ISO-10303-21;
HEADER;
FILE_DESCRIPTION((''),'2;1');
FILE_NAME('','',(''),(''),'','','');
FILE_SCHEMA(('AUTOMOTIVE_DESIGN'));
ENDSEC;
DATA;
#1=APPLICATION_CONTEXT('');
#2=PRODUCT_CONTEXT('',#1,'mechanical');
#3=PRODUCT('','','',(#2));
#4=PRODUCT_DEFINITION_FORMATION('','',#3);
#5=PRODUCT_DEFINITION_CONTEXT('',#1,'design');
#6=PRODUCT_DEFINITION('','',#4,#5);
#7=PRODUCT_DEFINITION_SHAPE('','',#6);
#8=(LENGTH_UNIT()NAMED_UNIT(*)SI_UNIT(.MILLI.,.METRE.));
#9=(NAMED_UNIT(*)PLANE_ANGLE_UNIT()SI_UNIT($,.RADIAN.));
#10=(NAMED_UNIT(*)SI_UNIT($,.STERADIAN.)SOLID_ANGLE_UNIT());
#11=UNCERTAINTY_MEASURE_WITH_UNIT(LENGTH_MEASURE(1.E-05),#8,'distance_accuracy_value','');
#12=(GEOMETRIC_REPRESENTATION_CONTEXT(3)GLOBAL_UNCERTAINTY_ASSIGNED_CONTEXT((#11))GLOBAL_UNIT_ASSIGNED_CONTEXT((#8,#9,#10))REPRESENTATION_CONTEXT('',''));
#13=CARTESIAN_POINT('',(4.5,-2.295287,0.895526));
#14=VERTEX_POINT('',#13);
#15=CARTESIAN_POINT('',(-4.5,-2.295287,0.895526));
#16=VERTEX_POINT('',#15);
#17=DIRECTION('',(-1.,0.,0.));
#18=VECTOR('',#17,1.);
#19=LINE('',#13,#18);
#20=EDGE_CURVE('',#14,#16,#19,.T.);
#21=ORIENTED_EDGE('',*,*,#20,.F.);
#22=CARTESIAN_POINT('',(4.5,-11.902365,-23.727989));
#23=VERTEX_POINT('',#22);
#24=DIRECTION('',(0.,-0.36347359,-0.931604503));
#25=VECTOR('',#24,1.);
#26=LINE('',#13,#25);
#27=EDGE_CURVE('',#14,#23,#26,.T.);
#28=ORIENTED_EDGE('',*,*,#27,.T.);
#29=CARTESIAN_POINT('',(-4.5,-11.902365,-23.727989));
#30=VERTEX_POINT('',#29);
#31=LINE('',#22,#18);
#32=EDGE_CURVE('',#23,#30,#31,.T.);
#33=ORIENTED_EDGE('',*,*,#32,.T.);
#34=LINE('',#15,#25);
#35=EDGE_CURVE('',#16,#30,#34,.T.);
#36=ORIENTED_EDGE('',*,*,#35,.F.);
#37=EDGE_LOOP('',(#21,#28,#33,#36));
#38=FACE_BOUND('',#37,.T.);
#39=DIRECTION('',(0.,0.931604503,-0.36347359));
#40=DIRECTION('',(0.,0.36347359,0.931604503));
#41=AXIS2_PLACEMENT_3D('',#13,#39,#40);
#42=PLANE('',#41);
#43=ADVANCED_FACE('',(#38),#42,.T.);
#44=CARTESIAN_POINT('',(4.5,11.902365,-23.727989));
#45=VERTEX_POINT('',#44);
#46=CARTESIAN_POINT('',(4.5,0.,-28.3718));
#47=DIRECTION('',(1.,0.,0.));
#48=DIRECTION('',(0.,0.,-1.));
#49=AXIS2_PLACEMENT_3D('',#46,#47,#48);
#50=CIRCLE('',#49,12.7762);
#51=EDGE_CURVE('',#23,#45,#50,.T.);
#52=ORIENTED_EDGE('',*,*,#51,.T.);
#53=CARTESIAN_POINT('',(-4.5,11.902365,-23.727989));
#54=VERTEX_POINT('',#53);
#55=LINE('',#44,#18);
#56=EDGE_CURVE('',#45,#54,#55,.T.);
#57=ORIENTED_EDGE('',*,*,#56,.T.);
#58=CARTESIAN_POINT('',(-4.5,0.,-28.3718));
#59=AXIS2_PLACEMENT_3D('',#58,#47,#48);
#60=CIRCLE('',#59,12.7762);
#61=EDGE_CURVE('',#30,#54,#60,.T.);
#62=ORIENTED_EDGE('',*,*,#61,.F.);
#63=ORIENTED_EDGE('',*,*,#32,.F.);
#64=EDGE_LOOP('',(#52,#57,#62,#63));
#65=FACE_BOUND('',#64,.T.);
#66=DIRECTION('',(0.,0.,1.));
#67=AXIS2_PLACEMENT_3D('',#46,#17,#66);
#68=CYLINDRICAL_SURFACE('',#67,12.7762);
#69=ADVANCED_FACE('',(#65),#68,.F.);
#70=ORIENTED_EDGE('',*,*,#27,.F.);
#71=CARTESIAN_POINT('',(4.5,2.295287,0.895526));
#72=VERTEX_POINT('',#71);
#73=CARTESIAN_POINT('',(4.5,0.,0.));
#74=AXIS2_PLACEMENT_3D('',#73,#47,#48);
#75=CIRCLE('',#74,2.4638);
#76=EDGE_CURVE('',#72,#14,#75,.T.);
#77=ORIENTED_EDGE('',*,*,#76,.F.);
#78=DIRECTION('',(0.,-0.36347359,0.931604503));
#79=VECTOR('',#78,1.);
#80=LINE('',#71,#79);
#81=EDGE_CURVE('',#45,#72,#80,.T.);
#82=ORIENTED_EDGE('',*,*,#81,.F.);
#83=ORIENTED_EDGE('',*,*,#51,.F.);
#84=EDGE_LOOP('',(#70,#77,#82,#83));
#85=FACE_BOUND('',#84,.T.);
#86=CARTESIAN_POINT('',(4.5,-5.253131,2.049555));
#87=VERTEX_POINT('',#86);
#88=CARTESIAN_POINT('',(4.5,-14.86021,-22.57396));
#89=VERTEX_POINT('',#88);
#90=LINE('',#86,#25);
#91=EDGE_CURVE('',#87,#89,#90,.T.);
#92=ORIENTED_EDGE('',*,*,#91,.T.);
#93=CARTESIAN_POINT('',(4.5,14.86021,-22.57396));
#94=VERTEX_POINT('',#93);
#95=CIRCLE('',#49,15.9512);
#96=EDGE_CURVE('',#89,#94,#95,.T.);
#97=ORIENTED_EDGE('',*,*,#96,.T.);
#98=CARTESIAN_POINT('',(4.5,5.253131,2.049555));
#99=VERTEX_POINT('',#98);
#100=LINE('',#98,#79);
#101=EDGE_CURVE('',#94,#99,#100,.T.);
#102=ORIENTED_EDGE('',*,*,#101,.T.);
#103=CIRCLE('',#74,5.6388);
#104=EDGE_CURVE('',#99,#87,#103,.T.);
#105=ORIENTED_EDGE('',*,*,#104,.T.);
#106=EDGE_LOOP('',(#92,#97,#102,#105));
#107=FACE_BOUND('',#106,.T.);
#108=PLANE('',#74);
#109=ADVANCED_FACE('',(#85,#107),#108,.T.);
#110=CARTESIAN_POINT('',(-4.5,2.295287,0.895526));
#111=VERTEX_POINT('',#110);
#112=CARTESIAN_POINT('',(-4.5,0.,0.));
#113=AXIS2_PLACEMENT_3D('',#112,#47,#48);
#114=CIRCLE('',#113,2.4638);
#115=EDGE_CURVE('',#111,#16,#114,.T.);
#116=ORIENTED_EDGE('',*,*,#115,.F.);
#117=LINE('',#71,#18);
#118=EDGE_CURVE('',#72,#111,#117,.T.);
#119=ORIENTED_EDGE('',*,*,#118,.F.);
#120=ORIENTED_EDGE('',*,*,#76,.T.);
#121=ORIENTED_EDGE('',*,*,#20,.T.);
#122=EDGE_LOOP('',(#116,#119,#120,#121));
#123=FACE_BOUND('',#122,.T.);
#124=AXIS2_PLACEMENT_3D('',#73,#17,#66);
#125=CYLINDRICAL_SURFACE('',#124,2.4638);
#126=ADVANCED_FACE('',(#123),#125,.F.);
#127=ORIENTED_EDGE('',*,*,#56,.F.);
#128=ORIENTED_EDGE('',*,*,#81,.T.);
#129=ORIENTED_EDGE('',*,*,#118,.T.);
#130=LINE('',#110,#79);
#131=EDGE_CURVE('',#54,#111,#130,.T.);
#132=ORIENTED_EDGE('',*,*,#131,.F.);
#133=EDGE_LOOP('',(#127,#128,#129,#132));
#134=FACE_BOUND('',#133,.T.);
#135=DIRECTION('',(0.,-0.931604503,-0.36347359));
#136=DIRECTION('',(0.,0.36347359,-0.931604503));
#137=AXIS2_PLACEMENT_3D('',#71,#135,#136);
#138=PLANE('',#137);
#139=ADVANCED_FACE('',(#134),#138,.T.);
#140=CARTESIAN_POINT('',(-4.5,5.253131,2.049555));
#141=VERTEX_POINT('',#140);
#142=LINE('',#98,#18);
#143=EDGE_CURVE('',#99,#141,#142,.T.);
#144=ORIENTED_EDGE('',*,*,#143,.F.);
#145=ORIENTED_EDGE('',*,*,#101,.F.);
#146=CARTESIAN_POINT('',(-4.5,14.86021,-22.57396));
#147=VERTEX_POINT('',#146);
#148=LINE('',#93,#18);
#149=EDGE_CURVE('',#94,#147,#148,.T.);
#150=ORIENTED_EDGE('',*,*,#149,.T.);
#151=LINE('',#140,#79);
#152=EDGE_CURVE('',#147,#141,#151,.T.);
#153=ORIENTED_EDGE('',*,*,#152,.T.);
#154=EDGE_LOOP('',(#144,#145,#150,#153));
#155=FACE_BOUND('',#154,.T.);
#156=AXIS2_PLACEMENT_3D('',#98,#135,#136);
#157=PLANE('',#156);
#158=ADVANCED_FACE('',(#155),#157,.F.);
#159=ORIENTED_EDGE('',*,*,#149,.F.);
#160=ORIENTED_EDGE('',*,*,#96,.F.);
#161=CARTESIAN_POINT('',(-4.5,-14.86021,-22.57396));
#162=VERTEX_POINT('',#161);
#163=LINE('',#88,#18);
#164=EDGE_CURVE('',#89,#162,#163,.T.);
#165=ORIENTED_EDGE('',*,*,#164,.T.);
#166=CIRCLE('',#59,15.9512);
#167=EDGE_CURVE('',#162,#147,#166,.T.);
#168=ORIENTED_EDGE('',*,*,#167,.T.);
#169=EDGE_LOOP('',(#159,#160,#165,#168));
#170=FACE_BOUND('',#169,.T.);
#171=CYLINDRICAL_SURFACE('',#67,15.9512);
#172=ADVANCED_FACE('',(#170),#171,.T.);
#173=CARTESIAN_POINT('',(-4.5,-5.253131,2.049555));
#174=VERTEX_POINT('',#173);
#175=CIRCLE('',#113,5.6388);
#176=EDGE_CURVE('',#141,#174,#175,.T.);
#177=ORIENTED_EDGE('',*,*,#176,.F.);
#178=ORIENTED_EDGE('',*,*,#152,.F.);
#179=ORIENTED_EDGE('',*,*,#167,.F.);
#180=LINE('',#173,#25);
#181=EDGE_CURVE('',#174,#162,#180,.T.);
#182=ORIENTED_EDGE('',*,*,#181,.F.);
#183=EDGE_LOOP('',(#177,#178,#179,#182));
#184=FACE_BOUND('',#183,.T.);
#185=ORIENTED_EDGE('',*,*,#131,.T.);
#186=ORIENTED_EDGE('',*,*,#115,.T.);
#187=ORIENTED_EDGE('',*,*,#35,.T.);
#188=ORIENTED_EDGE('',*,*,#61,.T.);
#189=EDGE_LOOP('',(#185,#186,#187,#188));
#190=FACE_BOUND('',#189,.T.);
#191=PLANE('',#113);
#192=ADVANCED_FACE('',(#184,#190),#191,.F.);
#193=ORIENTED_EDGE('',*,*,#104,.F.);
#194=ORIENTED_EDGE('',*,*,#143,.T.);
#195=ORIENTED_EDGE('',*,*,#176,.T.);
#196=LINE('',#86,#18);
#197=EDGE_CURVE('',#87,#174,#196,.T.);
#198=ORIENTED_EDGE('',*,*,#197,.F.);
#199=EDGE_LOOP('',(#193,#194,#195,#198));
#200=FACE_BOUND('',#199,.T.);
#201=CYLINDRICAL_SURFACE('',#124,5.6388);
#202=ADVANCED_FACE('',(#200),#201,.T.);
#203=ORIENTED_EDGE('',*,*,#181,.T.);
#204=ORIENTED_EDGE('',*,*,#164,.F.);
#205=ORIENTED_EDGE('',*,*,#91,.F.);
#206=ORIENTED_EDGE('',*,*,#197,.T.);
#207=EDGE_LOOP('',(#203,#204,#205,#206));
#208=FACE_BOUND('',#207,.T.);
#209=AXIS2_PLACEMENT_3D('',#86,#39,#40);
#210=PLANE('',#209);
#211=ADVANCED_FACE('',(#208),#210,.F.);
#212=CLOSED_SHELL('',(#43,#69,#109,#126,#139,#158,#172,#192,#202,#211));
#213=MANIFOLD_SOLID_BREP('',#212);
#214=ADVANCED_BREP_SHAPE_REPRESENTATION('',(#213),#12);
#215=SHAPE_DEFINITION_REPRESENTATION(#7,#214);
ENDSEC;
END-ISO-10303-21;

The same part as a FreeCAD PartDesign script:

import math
import FreeCAD as App
import Part
import Sketcher
from FreeCAD import Vector
Q = App.Units.Quantity

doc = App.newDocument("Part")
params = doc.addObject("Spreadsheet::Sheet", "Params")
for row, (alias, value) in enumerate([
    ("sketch1_radius", "0.222 in"),
    ("sketch1_radius2", "0.628 in"),
    ("sketch1_radius3", "0.503 in"),
    ("pad1_length", "9 mm"),
], start=1):
    params.set(f"A{row}", alias)
    params.set(f"B{row}", "=" + value)
    params.setAlias(f"B{row}", alias)

body = doc.addObject("PartDesign::Body", "Body")

# Sketch on YZ plane
sketch1 = doc.addObject("Sketcher::SketchObject", "Sketch")
body.addObject(sketch1)
sketch1.AttachmentSupport = (doc.YZ_Plane, [""])
sketch1.MapMode = "FlatFace"
sketch1.addGeometry([
    Part.LineSegment(Vector(14.9, -22.6, 0), Vector(5.3, 2, 0)),  # 0
    Part.ArcOfCircle(Part.Circle(Vector(0, 0, 0), Vector(0, 0, 1), 5.6), math.radians(21), math.radians(159)),  # 1
    Part.LineSegment(Vector(-5.3, 2, 0), Vector(-14.9, -22.6, 0)),  # 2
    Part.ArcOfCircle(Part.Circle(Vector(0, -28.4, 0), Vector(0, 0, 1), 16), math.radians(159), math.radians(381)),  # 3
    Part.LineSegment(Vector(2.3, 0.9, 0), Vector(11.9, -23.7, 0)),  # 4
    Part.ArcOfCircle(Part.Circle(Vector(0, -28.4, 0), Vector(0, 0, 1), 12.8), math.radians(159), math.radians(381)),  # 5
    Part.LineSegment(Vector(-11.9, -23.7, 0), Vector(-2.3, 0.9, 0)),  # 6
    Part.ArcOfCircle(Part.Circle(Vector(0, 0, 0), Vector(0, 0, 1), 2.5), math.radians(21), math.radians(159)),  # 7
], False)
sketch1.addConstraint([
    Sketcher.Constraint("Tangent", 0, 2, 1, 1),
    Sketcher.Constraint("Tangent", 1, 2, 2, 1),
    Sketcher.Constraint("Tangent", 2, 2, 3, 1),
    Sketcher.Constraint("Tangent", 3, 2, 0, 1),
    Sketcher.Constraint("Tangent", 4, 2, 5, 2),
    Sketcher.Constraint("Tangent", 5, 1, 6, 1),
    Sketcher.Constraint("Tangent", 6, 2, 7, 2),
    Sketcher.Constraint("Tangent", 7, 1, 4, 1),
    Sketcher.Constraint("Coincident", 1, 3, -1, 1),
    Sketcher.Constraint("Coincident", 7, 3, -1, 1),
    Sketcher.Constraint("Coincident", 5, 3, 3, 3),
    Sketcher.Constraint("PointOnObject", 3, 3, -2),
    Sketcher.Constraint("Parallel", 0, 4),
    Sketcher.Constraint("Radius", 1, Q("0.222 in")),
    Sketcher.Constraint("Radius", 3, Q("0.628 in")),
    Sketcher.Constraint("Radius", 5, Q("0.503 in")),
    Sketcher.Constraint("DistanceY", 3, 3, -1, 1, Q("1.117 in")),
])
sketch1.setExpression("Constraints[13]", "Params.sketch1_radius")
sketch1.setExpression("Constraints[14]", "Params.sketch1_radius2")
sketch1.setExpression("Constraints[15]", "Params.sketch1_radius3")
pad1 = doc.addObject("PartDesign::Pad", "Pad")
body.addObject(pad1)
pad1.Profile = sketch1
pad1.setExpression("Length", "Params.pad1_length")
pad1.Midplane = True

doc.recompute()
